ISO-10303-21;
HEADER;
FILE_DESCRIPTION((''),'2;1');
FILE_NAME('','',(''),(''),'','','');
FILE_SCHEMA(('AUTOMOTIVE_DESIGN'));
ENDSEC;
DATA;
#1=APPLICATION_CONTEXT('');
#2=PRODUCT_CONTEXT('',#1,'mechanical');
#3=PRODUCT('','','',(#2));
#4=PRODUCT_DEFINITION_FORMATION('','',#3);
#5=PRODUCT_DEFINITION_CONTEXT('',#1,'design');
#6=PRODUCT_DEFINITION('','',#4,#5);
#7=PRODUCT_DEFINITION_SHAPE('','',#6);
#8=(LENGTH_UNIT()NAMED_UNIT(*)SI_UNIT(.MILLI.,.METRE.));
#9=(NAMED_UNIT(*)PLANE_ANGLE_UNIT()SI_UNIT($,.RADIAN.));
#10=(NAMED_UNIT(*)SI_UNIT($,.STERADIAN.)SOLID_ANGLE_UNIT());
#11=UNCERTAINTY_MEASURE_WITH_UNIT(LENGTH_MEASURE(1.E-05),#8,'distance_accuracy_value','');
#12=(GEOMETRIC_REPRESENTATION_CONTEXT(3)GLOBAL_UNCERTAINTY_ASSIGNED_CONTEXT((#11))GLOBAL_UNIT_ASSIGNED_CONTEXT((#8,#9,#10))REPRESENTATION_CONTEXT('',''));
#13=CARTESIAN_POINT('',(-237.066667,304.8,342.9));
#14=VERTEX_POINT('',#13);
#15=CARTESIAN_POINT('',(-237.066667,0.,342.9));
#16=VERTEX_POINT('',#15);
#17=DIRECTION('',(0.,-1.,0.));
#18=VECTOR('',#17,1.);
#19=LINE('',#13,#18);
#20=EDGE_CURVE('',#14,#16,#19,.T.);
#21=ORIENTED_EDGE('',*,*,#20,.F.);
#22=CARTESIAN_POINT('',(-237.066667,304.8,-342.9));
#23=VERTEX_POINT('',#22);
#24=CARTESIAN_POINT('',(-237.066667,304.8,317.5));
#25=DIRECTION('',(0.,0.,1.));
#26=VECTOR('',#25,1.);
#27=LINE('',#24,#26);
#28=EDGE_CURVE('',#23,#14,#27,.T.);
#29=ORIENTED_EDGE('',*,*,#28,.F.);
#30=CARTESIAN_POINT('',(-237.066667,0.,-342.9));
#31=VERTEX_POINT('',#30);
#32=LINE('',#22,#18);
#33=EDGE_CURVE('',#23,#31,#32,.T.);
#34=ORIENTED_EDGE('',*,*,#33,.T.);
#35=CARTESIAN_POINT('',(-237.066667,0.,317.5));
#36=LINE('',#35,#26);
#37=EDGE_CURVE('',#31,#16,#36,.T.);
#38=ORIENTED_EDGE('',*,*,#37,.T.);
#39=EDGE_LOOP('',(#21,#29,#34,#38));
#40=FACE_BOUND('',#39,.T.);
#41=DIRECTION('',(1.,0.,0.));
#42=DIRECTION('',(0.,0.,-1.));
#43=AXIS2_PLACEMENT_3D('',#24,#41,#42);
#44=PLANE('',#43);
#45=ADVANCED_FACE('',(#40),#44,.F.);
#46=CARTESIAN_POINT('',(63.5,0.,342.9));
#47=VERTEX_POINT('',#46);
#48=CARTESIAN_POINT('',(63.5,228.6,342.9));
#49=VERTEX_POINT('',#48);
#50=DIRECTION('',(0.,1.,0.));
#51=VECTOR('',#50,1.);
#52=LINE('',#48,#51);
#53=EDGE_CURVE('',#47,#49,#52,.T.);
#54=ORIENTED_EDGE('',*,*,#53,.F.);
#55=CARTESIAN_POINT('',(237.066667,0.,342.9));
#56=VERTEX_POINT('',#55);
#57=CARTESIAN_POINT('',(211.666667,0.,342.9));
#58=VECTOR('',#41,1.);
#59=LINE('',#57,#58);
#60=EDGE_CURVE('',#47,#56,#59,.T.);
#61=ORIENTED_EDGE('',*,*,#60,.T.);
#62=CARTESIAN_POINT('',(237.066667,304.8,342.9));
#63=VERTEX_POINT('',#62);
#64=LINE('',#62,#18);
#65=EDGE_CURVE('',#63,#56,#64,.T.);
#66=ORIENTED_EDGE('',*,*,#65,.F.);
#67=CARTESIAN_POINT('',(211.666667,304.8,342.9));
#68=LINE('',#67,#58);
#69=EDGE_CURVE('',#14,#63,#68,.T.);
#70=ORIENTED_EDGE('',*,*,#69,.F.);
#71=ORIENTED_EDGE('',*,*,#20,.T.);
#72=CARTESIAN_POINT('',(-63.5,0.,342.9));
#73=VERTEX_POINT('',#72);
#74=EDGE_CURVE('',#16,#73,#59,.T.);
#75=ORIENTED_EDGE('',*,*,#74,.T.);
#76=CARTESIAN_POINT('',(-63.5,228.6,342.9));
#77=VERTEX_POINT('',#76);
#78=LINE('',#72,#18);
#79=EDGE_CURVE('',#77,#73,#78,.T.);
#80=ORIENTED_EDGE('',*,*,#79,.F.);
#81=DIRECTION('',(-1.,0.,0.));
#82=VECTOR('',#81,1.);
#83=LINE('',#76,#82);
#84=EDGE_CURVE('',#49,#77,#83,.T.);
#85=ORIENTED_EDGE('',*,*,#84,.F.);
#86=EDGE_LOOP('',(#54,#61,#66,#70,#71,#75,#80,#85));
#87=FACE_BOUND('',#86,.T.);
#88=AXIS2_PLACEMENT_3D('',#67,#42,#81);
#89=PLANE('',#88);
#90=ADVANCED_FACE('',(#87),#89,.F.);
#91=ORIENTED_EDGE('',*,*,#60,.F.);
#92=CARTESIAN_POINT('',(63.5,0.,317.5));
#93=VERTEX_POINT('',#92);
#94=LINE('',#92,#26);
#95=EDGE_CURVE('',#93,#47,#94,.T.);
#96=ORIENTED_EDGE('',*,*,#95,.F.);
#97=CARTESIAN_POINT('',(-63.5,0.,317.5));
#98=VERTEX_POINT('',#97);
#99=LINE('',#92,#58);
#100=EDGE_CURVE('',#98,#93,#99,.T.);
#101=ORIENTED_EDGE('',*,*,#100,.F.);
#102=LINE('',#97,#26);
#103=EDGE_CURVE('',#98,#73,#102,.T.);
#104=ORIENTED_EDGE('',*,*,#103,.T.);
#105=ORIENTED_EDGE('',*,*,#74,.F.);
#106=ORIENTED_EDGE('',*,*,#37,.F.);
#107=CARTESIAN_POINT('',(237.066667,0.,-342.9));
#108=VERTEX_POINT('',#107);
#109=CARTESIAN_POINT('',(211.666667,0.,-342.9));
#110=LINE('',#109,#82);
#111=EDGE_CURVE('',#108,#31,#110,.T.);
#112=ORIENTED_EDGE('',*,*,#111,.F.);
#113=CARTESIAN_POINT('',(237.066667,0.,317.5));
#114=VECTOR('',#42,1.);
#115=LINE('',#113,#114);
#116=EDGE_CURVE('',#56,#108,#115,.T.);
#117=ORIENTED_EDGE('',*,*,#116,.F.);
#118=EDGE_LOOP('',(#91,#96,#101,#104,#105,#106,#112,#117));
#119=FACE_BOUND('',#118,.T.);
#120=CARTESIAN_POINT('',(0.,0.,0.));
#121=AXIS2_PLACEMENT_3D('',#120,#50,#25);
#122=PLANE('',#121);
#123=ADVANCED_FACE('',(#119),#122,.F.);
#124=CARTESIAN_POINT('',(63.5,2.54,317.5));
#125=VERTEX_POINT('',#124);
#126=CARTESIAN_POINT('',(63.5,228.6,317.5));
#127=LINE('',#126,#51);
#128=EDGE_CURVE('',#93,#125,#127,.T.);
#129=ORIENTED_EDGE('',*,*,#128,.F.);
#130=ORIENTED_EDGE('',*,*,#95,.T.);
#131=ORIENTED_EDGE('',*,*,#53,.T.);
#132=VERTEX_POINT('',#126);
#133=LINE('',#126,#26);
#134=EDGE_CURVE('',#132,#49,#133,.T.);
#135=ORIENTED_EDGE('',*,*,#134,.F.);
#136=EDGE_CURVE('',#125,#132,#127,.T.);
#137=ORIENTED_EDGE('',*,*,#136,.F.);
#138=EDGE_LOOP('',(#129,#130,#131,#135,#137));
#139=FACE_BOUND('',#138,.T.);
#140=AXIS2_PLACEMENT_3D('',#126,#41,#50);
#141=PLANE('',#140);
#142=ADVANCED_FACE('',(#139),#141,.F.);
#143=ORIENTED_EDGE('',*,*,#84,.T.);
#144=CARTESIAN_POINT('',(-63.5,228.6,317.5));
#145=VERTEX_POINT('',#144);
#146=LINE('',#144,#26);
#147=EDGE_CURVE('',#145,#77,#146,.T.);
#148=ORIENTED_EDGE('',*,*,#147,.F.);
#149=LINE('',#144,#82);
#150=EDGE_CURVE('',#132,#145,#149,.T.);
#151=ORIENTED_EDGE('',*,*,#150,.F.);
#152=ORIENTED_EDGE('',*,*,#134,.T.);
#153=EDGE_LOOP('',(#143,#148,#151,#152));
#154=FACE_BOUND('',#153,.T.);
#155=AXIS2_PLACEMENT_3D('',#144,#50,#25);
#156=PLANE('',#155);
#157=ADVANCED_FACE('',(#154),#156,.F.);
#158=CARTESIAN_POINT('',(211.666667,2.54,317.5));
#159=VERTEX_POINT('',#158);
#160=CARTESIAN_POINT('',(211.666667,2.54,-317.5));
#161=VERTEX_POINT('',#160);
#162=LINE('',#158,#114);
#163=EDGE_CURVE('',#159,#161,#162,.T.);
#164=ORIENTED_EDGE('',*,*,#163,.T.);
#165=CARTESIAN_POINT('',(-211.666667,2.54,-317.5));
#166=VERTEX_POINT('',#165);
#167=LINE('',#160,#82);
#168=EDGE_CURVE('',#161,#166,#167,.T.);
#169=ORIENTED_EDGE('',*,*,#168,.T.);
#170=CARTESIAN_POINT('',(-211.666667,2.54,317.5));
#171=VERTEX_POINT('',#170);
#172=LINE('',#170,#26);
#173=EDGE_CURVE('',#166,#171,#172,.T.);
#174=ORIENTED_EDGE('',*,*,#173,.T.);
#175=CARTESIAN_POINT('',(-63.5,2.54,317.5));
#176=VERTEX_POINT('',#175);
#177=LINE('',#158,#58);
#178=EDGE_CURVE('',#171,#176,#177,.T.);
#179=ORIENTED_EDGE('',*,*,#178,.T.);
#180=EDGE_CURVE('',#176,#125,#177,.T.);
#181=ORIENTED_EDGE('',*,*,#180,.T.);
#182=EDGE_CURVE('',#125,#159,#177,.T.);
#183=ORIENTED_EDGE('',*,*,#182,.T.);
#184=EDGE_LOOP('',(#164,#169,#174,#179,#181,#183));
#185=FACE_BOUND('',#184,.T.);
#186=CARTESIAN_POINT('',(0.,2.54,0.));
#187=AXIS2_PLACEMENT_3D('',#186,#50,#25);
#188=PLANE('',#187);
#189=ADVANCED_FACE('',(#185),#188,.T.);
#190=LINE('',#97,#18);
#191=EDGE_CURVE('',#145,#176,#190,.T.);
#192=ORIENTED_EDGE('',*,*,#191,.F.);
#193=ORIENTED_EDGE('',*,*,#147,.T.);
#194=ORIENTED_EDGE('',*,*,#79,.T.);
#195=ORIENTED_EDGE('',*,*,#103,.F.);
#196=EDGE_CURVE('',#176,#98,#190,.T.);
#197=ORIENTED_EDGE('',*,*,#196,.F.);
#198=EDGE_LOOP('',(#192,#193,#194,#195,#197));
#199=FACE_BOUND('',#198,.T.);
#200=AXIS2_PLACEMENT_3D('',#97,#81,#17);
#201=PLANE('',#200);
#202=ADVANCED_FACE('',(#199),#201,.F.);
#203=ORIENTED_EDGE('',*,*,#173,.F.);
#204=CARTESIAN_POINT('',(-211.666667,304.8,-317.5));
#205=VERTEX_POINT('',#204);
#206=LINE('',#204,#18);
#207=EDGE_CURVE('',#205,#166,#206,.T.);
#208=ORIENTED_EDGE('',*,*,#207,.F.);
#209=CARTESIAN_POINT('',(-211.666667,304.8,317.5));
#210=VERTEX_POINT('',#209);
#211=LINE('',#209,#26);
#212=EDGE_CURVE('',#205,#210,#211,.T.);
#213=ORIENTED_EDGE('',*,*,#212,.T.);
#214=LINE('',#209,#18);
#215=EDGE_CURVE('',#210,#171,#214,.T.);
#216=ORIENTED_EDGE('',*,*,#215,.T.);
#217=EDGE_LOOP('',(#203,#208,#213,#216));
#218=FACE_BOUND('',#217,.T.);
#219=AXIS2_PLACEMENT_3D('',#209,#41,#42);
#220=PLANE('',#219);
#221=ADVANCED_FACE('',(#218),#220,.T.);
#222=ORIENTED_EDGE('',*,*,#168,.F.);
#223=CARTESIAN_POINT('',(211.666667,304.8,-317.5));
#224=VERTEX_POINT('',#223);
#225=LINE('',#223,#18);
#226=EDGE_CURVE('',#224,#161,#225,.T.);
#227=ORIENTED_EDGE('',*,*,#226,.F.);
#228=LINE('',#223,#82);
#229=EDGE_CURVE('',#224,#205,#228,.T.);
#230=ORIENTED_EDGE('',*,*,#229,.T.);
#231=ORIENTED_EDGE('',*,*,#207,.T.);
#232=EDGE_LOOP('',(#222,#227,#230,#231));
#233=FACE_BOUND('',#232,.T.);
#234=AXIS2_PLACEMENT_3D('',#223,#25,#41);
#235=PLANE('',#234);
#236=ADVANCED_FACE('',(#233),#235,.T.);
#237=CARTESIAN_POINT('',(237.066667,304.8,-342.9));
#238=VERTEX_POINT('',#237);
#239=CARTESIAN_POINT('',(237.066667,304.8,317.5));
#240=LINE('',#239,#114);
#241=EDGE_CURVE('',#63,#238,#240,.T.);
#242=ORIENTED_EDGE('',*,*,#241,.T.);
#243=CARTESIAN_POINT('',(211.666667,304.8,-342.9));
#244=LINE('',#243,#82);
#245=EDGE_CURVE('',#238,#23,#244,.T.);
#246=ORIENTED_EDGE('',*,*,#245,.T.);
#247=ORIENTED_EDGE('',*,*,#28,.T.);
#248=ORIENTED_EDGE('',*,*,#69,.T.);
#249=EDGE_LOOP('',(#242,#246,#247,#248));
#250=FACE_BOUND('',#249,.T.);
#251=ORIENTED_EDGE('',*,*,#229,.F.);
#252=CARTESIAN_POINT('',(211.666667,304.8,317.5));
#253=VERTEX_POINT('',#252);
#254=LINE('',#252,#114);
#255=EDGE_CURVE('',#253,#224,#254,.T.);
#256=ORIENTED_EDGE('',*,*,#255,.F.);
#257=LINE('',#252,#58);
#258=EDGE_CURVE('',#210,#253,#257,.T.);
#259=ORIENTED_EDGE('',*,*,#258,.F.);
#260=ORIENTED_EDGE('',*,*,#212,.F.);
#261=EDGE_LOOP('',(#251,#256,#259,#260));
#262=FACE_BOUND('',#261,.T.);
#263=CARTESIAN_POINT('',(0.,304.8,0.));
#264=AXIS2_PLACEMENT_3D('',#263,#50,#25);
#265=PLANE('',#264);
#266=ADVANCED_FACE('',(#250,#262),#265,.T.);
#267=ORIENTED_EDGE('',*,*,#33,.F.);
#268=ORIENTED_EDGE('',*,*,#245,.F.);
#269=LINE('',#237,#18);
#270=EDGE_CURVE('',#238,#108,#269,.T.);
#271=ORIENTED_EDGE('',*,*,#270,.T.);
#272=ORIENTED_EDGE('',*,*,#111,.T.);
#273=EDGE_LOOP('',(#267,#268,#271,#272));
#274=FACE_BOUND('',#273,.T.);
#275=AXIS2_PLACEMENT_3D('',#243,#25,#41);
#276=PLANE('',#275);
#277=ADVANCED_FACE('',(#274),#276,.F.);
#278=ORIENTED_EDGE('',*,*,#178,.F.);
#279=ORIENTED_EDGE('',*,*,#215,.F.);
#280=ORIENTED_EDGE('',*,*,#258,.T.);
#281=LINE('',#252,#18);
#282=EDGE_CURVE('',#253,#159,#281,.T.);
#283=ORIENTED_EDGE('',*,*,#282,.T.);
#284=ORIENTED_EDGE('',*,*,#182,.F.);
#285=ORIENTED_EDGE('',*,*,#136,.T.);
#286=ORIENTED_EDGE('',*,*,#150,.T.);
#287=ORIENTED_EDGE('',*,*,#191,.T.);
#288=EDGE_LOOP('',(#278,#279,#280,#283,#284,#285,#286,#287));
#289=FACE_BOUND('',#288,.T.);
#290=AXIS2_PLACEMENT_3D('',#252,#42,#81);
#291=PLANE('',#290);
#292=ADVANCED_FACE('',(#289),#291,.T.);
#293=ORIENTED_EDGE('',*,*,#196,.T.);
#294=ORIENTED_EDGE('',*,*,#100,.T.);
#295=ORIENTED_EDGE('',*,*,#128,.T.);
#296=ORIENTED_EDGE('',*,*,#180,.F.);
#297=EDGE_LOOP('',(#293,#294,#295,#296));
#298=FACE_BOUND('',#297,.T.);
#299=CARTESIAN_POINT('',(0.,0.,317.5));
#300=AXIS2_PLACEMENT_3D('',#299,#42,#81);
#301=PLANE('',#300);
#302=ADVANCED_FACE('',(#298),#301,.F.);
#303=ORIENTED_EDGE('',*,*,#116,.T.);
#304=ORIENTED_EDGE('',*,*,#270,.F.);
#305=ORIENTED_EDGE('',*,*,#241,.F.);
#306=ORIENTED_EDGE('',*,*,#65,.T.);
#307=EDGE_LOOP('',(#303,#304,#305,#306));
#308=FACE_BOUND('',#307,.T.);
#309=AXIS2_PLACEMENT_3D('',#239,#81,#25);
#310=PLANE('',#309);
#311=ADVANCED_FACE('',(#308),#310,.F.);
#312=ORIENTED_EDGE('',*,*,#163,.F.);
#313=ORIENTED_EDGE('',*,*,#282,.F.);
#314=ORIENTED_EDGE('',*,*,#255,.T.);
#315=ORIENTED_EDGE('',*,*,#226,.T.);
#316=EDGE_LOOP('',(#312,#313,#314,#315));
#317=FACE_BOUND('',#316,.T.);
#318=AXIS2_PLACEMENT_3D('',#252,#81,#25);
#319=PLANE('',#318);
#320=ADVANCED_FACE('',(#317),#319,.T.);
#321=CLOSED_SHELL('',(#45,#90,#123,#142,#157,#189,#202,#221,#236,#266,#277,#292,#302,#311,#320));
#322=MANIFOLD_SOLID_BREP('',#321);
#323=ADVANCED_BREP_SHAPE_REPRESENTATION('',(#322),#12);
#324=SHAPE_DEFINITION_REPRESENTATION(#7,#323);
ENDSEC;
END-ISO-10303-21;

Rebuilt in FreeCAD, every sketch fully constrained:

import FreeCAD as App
import Part
import Sketcher

V = App.Vector
Q = App.Units.Quantity

doc = App.newDocument("Part")
body = doc.addObject("PartDesign::Body", "Body")

sketch1 = doc.addObject("Sketcher::SketchObject", "Sketch")
body.addObject(sketch1)
sketch1.AttachmentSupport = (doc.XZ_Plane, [""])
sketch1.MapMode = "FlatFace"
sketch1.addGeometry(Part.LineSegment(V(-237, -343, 0), V(-237, 343, 0)), False)
sketch1.addGeometry(Part.LineSegment(V(-237, 343, 0), V(237, 343, 0)), False)
sketch1.addGeometry(Part.LineSegment(V(237, 343, 0), V(237, -343, 0)), False)
sketch1.addGeometry(Part.LineSegment(V(237, -343, 0), V(-237, -343, 0)), False)
sketch1.addGeometry(Part.LineSegment(V(212, 318, 0), V(-212, 318, 0)), False)
sketch1.addGeometry(Part.LineSegment(V(-212, 318, 0), V(-212, -318, 0)), False)
sketch1.addGeometry(Part.LineSegment(V(-212, -318, 0), V(212, -318, 0)), False)
sketch1.addGeometry(Part.LineSegment(V(212, -318, 0), V(212, 318, 0)), False)
sketch1.addConstraint(Sketcher.Constraint("Coincident", 0, 2, 1, 1))
sketch1.addConstraint(Sketcher.Constraint("Coincident", 1, 2, 2, 1))
sketch1.addConstraint(Sketcher.Constraint("Coincident", 2, 2, 3, 1))
sketch1.addConstraint(Sketcher.Constraint("Coincident", 3, 2, 0, 1))
sketch1.addConstraint(Sketcher.Constraint("Coincident", 4, 2, 5, 1))
sketch1.addConstraint(Sketcher.Constraint("Coincident", 5, 2, 6, 1))
sketch1.addConstraint(Sketcher.Constraint("Coincident", 6, 2, 7, 1))
sketch1.addConstraint(Sketcher.Constraint("Coincident", 7, 2, 4, 1))
sketch1.addConstraint(Sketcher.Constraint("Vertical", 0))
sketch1.addConstraint(Sketcher.Constraint("Horizontal", 1))
sketch1.addConstraint(Sketcher.Constraint("Vertical", 2))
sketch1.addConstraint(Sketcher.Constraint("Horizontal", 3))
sketch1.addConstraint(Sketcher.Constraint("Horizontal", 4))
sketch1.addConstraint(Sketcher.Constraint("Vertical", 5))
sketch1.addConstraint(Sketcher.Constraint("Horizontal", 6))
sketch1.addConstraint(Sketcher.Constraint("Vertical", 7))
sketch1.addConstraint(Sketcher.Constraint("Symmetric", 0, 2, 2, 2, -1, 1))
sketch1.addConstraint(Sketcher.Constraint("Symmetric", 4, 2, 6, 2, -1, 1))
sketch1.addConstraint(Sketcher.Constraint("DistanceY", 0, 1, 0, 2, Q("27 in")))
sketch1.addConstraint(Sketcher.Constraint("DistanceY", 5, 2, 5, 1, Q("25 in")))
sketch1.addConstraint(Sketcher.Constraint("DistanceX", 0, 2, 4, 2, Q("1 in")))
sketch1.addConstraint(Sketcher.Constraint("DistanceX", 1, 1, 1, 2, Q("474.133333 mm")))
pad1 = doc.addObject("PartDesign::Pad", "Pad")
body.addObject(pad1)
pad1.Profile = sketch1
pad1.Length = Q("12 in")
pad1.Reversed = True

sketch2 = doc.addObject("Sketcher::SketchObject", "Sketch001")
body.addObject(sketch2)
sketch2.AttachmentSupport = (doc.XZ_Plane, [""])
sketch2.MapMode = "FlatFace"
sketch2.addGeometry(Part.LineSegment(V(-212, -318, 0), V(-212, 318, 0)), False)
sketch2.addGeometry(Part.LineSegment(V(-212, 318, 0), V(212, 318, 0)), False)
sketch2.addGeometry(Part.LineSegment(V(212, 318, 0), V(212, -318, 0)), False)
sketch2.addGeometry(Part.LineSegment(V(212, -318, 0), V(-212, -318, 0)), False)
sketch2.addConstraint(Sketcher.Constraint("Coincident", 0, 2, 1, 1))
sketch2.addConstraint(Sketcher.Constraint("Coincident", 1, 2, 2, 1))
sketch2.addConstraint(Sketcher.Constraint("Coincident", 2, 2, 3, 1))
sketch2.addConstraint(Sketcher.Constraint("Coincident", 3, 2, 0, 1))
sketch2.addConstraint(Sketcher.Constraint("Vertical", 0))
sketch2.addConstraint(Sketcher.Constraint("Horizontal", 1))
sketch2.addConstraint(Sketcher.Constraint("Vertical", 2))
sketch2.addConstraint(Sketcher.Constraint("Horizontal", 3))
sketch2.addConstraint(Sketcher.Constraint("Symmetric", 0, 2, 2, 2, -1, 1))
sketch2.addConstraint(Sketcher.Constraint("DistanceY", 0, 1, 0, 2, Q("25 in")))
sketch2.addConstraint(Sketcher.Constraint("DistanceX", 1, 1, 1, 2, Q("423.333333 mm")))
pad2 = doc.addObject("PartDesign::Pad", "Pad001")
body.addObject(pad2)
pad2.Profile = sketch2
pad2.Length = Q("0.1 in")
pad2.Reversed = True

sketch3 = doc.addObject("Sketcher::SketchObject", "Sketch002")
body.addObject(sketch3)
sketch3.AttachmentSupport = (doc.XY_Plane, [""])
sketch3.MapMode = "FlatFace"
sketch3.AttachmentOffset = App.Placement(V(0, 0, 13.5 * 25.4), App.Rotation())
sketch3.addGeometry(Part.LineSegment(V(-64, 229, 0), V(-64, 0, 0)), False)
sketch3.addGeometry(Part.LineSegment(V(-64, 0, 0), V(64, 0, 0)), False)
sketch3.addGeometry(Part.LineSegment(V(64, 0, 0), V(64, 229, 0)), False)
sketch3.addGeometry(Part.LineSegment(V(64, 229, 0), V(-64, 229, 0)), False)
sketch3.addConstraint(Sketcher.Constraint("Coincident", 0, 2, 1, 1))
sketch3.addConstraint(Sketcher.Constraint("Coincident", 1, 2, 2, 1))
sketch3.addConstraint(Sketcher.Constraint("Coincident", 2, 2, 3, 1))
sketch3.addConstraint(Sketcher.Constraint("Coincident", 3, 2, 0, 1))
sketch3.addConstraint(Sketcher.Constraint("Vertical", 0))
sketch3.addConstraint(Sketcher.Constraint("Horizontal", 1))
sketch3.addConstraint(Sketcher.Constraint("Vertical", 2))
sketch3.addConstraint(Sketcher.Constraint("Horizontal", 3))
sketch3.addConstraint(Sketcher.Constraint("Symmetric", 0, 2, 1, 2, -1, 1))
sketch3.addConstraint(Sketcher.Constraint("DistanceX", 1, 1, 1, 2, Q("5 in")))
sketch3.addConstraint(Sketcher.Constraint("DistanceY", 0, 2, 0, 1, Q("9 in")))
pocket1 = doc.addObject("PartDesign::Pocket", "Pocket")
body.addObject(pocket1)
pocket1.Profile = sketch3
pocket1.Length = Q("1 in")

doc.recompute()
